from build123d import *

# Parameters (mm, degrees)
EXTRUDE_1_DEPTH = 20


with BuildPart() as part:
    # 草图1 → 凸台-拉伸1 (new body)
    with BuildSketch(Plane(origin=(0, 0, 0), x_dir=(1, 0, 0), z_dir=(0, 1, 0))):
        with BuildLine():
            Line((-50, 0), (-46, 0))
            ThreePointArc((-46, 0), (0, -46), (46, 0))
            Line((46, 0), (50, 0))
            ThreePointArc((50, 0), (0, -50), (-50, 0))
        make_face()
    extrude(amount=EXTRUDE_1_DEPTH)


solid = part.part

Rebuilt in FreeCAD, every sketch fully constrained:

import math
import FreeCAD as App
import Part
import Sketcher

V = App.Vector

doc = App.newDocument("Part")
body = doc.addObject("PartDesign::Body", "Body")

sketch1 = doc.addObject("Sketcher::SketchObject", "Sketch")
body.addObject(sketch1)
sketch1.AttachmentSupport = (doc.XZ_Plane, [""])
sketch1.MapMode = "FlatFace"
sketch1.addGeometry(Part.LineSegment(V(-46, 0, 0), V(-50, 0, 0)), False)
sketch1.addGeometry(Part.ArcOfCircle(Part.Circle(V(0, 0, 0), V(0, 0, 1), 50), math.radians(0), math.radians(180)), False)
sketch1.addGeometry(Part.LineSegment(V(50, 0, 0), V(46, 0, 0)), False)
sketch1.addGeometry(Part.ArcOfCircle(Part.Circle(V(0, 0, 0), V(0, 0, 1), 46), math.radians(0), math.radians(180)), False)
sketch1.addConstraint(Sketcher.Constraint("Coincident", 0, 2, 1, 2))
sketch1.addConstraint(Sketcher.Constraint("Coincident", 1, 1, 2, 1))
sketch1.addConstraint(Sketcher.Constraint("Coincident", 2, 2, 3, 1))
sketch1.addConstraint(Sketcher.Constraint("Coincident", 3, 2, 0, 1))
sketch1.addConstraint(Sketcher.Constraint("Horizontal", 0))
sketch1.addConstraint(Sketcher.Constraint("Horizontal", 2))
sketch1.addConstraint(Sketcher.Constraint("Coincident", 1, 3, -1, 1))
sketch1.addConstraint(Sketcher.Constraint("Coincident", 3, 3, -1, 1))
sketch1.addConstraint(Sketcher.Constraint("PointOnObject", 0, 2, -1))
sketch1.addConstraint(Sketcher.Constraint("PointOnObject", 1, 1, -1))
sketch1.addConstraint(Sketcher.Constraint("Radius", 1, 50.0))
sketch1.addConstraint(Sketcher.Constraint("Radius", 3, 46.0))
pad1 = doc.addObject("PartDesign::Pad", "Pad")
body.addObject(pad1)
pad1.Profile = sketch1
pad1.Length = 20
pad1.Reversed = True

doc.recompute()
